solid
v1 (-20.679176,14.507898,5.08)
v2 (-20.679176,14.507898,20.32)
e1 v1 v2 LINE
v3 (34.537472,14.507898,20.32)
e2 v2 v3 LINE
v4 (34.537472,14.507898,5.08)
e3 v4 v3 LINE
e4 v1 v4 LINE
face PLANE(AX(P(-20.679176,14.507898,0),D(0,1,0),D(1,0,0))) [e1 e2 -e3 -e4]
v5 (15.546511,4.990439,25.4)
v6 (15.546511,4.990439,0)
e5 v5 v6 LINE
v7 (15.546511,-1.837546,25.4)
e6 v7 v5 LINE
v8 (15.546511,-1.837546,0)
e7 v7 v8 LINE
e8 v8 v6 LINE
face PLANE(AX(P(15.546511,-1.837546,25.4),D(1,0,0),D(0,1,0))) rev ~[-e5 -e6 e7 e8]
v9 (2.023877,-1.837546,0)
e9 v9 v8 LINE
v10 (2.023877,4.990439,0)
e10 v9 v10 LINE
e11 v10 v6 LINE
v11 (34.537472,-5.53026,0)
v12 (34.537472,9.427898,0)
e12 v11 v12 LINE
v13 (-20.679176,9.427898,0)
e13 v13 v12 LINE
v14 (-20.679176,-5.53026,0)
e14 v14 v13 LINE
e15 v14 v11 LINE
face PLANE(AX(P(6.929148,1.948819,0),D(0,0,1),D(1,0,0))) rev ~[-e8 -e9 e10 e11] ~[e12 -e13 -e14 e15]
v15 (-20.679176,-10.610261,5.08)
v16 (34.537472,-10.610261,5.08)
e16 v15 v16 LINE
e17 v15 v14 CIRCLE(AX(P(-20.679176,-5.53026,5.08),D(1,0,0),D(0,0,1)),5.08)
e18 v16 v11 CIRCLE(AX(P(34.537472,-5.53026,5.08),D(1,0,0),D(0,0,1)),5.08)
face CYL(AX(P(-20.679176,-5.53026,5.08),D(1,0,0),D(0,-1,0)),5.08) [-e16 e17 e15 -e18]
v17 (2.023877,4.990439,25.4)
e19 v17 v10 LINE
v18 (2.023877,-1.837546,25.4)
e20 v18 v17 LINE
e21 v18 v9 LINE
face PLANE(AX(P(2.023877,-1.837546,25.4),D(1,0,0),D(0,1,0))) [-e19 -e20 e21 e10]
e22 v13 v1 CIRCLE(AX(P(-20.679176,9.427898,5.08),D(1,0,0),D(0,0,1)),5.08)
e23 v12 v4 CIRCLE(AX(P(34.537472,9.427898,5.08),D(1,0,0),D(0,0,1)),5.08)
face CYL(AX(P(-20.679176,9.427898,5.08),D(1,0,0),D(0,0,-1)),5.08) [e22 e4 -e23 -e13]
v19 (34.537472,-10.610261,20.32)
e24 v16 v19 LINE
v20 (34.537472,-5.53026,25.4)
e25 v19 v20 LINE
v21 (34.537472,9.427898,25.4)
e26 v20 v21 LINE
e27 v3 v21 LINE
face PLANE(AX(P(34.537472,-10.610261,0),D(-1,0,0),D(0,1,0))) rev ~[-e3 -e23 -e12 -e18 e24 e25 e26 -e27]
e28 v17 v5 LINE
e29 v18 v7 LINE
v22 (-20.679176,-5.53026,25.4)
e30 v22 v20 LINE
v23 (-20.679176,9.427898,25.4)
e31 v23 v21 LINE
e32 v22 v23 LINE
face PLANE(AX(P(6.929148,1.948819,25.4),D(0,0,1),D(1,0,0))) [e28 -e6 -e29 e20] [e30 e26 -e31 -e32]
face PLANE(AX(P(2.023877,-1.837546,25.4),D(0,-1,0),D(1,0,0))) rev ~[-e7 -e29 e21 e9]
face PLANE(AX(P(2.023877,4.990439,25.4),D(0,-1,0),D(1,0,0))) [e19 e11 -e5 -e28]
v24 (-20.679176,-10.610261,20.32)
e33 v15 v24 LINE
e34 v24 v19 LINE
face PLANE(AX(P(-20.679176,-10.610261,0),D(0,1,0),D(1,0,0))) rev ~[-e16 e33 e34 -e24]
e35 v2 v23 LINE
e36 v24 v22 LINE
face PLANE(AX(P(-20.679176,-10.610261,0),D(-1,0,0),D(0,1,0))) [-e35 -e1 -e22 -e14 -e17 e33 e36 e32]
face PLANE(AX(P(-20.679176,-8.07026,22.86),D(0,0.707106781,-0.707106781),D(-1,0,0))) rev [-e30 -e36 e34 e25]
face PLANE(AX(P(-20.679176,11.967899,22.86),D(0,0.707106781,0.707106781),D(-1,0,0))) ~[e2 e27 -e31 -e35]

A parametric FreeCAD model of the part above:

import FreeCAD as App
import Part
import Sketcher
from FreeCAD import Vector
Q = App.Units.Quantity


def edges_at(feature, points):
    """Names of the edges that pass closest to the given points."""
    edges = feature.Shape.Edges
    near = lambda p: min(range(len(edges)), key=lambda i: edges[i].distToShape(Part.Vertex(*p))[0])
    return sorted({f"Edge{near(p) + 1}" for p in points})

doc = App.newDocument("Part")
body = doc.addObject("PartDesign::Body", "Body")

# Sketch on XY plane
sketch1 = body.newObject("Sketcher::SketchObject", "Sketch")
sketch1.AttachmentSupport = (doc.getObject("XY_Plane"), [""])
sketch1.MapMode = "FlatFace"
sketch1.addGeometry([
    Part.LineSegment(Vector(-21, 15, 0), Vector(-21, -11, 0)),
    Part.LineSegment(Vector(-21, -11, 0), Vector(35, -11, 0)),
    Part.LineSegment(Vector(35, -11, 0), Vector(35, 15, 0)),
    Part.LineSegment(Vector(35, 15, 0), Vector(-21, 15, 0)),
], False)
sketch1.addConstraint([
    Sketcher.Constraint("Coincident", 0, 2, 1, 1),
    Sketcher.Constraint("Coincident", 1, 2, 2, 1),
    Sketcher.Constraint("Coincident", 2, 2, 3, 1),
    Sketcher.Constraint("Coincident", 3, 2, 0, 1),
    Sketcher.Constraint("Vertical", 0),
    Sketcher.Constraint("Horizontal", 1),
    Sketcher.Constraint("Vertical", 2),
    Sketcher.Constraint("Horizontal", 3),
    Sketcher.Constraint("DistanceY", 0, 2, 0, 1, Q("25.118159 mm")),
    Sketcher.Constraint("DistanceY", -1, 1, 2, 2, Q("14.507898 mm")),
    Sketcher.Constraint("DistanceX", 1, 1, 1, 2, Q("55.216648 mm")),
    Sketcher.Constraint("DistanceX", 0, 2, -1, 1, Q("20.679176 mm")),
])
pad1 = body.newObject("PartDesign::Pad", "Pad")
pad1.Profile = sketch1
pad1.Length = Q("1 in")

# Sketch on XY plane
sketch2 = body.newObject("Sketcher::SketchObject", "Sketch001")
sketch2.AttachmentSupport = (doc.getObject("XY_Plane"), [""])
sketch2.MapMode = "FlatFace"
sketch2.AttachmentOffset = App.Placement(Vector(0, 0, 1 * 25.4), App.Rotation())
sketch2.addGeometry([
    Part.LineSegment(Vector(2, 5, 0), Vector(2, -2, 0)),
    Part.LineSegment(Vector(2, -2, 0), Vector(16, -2, 0)),
    Part.LineSegment(Vector(16, -2, 0), Vector(16, 5, 0)),
    Part.LineSegment(Vector(16, 5, 0), Vector(2, 5, 0)),
], False)
sketch2.addConstraint([
    Sketcher.Constraint("Coincident", 0, 2, 1, 1),
    Sketcher.Constraint("Coincident", 1, 2, 2, 1),
    Sketcher.Constraint("Coincident", 2, 2, 3, 1),
    Sketcher.Constraint("Coincident", 3, 2, 0, 1),
    Sketcher.Constraint("Vertical", 0),
    Sketcher.Constraint("Horizontal", 1),
    Sketcher.Constraint("Vertical", 2),
    Sketcher.Constraint("Horizontal", 3),
    Sketcher.Constraint("DistanceX", 1, 1, 1, 2, Q("13.522635 mm")),
    Sketcher.Constraint("DistanceY", 0, 2, 0, 1, Q("6.827985 mm")),
    Sketcher.Constraint("DistanceX", -1, 1, 1, 2, Q("15.546511 mm")),
    Sketcher.Constraint("DistanceY", -1, 1, 2, 2, Q("4.990439 mm")),
])
pocket1 = body.newObject("PartDesign::Pocket", "Pocket")
pocket1.Profile = sketch2
pocket1.Length = Q("1 in")
doc.recompute()

chamfer = body.newObject("PartDesign::Chamfer", "Chamfer")
chamfer.Base = (pocket1, edges_at(pocket1, [(6.929, 14.508, 25.4), (6.929, -10.61, 25.4)]))
chamfer.Size = Q("0.2 in")
doc.recompute()

fillet = body.newObject("PartDesign::Fillet", "Fillet")
fillet.Base = (chamfer, edges_at(chamfer, [(6.929, -10.61, 0), (6.929, 14.508, 0)]))
fillet.Radius = Q("0.2 in")

doc.recompute()
